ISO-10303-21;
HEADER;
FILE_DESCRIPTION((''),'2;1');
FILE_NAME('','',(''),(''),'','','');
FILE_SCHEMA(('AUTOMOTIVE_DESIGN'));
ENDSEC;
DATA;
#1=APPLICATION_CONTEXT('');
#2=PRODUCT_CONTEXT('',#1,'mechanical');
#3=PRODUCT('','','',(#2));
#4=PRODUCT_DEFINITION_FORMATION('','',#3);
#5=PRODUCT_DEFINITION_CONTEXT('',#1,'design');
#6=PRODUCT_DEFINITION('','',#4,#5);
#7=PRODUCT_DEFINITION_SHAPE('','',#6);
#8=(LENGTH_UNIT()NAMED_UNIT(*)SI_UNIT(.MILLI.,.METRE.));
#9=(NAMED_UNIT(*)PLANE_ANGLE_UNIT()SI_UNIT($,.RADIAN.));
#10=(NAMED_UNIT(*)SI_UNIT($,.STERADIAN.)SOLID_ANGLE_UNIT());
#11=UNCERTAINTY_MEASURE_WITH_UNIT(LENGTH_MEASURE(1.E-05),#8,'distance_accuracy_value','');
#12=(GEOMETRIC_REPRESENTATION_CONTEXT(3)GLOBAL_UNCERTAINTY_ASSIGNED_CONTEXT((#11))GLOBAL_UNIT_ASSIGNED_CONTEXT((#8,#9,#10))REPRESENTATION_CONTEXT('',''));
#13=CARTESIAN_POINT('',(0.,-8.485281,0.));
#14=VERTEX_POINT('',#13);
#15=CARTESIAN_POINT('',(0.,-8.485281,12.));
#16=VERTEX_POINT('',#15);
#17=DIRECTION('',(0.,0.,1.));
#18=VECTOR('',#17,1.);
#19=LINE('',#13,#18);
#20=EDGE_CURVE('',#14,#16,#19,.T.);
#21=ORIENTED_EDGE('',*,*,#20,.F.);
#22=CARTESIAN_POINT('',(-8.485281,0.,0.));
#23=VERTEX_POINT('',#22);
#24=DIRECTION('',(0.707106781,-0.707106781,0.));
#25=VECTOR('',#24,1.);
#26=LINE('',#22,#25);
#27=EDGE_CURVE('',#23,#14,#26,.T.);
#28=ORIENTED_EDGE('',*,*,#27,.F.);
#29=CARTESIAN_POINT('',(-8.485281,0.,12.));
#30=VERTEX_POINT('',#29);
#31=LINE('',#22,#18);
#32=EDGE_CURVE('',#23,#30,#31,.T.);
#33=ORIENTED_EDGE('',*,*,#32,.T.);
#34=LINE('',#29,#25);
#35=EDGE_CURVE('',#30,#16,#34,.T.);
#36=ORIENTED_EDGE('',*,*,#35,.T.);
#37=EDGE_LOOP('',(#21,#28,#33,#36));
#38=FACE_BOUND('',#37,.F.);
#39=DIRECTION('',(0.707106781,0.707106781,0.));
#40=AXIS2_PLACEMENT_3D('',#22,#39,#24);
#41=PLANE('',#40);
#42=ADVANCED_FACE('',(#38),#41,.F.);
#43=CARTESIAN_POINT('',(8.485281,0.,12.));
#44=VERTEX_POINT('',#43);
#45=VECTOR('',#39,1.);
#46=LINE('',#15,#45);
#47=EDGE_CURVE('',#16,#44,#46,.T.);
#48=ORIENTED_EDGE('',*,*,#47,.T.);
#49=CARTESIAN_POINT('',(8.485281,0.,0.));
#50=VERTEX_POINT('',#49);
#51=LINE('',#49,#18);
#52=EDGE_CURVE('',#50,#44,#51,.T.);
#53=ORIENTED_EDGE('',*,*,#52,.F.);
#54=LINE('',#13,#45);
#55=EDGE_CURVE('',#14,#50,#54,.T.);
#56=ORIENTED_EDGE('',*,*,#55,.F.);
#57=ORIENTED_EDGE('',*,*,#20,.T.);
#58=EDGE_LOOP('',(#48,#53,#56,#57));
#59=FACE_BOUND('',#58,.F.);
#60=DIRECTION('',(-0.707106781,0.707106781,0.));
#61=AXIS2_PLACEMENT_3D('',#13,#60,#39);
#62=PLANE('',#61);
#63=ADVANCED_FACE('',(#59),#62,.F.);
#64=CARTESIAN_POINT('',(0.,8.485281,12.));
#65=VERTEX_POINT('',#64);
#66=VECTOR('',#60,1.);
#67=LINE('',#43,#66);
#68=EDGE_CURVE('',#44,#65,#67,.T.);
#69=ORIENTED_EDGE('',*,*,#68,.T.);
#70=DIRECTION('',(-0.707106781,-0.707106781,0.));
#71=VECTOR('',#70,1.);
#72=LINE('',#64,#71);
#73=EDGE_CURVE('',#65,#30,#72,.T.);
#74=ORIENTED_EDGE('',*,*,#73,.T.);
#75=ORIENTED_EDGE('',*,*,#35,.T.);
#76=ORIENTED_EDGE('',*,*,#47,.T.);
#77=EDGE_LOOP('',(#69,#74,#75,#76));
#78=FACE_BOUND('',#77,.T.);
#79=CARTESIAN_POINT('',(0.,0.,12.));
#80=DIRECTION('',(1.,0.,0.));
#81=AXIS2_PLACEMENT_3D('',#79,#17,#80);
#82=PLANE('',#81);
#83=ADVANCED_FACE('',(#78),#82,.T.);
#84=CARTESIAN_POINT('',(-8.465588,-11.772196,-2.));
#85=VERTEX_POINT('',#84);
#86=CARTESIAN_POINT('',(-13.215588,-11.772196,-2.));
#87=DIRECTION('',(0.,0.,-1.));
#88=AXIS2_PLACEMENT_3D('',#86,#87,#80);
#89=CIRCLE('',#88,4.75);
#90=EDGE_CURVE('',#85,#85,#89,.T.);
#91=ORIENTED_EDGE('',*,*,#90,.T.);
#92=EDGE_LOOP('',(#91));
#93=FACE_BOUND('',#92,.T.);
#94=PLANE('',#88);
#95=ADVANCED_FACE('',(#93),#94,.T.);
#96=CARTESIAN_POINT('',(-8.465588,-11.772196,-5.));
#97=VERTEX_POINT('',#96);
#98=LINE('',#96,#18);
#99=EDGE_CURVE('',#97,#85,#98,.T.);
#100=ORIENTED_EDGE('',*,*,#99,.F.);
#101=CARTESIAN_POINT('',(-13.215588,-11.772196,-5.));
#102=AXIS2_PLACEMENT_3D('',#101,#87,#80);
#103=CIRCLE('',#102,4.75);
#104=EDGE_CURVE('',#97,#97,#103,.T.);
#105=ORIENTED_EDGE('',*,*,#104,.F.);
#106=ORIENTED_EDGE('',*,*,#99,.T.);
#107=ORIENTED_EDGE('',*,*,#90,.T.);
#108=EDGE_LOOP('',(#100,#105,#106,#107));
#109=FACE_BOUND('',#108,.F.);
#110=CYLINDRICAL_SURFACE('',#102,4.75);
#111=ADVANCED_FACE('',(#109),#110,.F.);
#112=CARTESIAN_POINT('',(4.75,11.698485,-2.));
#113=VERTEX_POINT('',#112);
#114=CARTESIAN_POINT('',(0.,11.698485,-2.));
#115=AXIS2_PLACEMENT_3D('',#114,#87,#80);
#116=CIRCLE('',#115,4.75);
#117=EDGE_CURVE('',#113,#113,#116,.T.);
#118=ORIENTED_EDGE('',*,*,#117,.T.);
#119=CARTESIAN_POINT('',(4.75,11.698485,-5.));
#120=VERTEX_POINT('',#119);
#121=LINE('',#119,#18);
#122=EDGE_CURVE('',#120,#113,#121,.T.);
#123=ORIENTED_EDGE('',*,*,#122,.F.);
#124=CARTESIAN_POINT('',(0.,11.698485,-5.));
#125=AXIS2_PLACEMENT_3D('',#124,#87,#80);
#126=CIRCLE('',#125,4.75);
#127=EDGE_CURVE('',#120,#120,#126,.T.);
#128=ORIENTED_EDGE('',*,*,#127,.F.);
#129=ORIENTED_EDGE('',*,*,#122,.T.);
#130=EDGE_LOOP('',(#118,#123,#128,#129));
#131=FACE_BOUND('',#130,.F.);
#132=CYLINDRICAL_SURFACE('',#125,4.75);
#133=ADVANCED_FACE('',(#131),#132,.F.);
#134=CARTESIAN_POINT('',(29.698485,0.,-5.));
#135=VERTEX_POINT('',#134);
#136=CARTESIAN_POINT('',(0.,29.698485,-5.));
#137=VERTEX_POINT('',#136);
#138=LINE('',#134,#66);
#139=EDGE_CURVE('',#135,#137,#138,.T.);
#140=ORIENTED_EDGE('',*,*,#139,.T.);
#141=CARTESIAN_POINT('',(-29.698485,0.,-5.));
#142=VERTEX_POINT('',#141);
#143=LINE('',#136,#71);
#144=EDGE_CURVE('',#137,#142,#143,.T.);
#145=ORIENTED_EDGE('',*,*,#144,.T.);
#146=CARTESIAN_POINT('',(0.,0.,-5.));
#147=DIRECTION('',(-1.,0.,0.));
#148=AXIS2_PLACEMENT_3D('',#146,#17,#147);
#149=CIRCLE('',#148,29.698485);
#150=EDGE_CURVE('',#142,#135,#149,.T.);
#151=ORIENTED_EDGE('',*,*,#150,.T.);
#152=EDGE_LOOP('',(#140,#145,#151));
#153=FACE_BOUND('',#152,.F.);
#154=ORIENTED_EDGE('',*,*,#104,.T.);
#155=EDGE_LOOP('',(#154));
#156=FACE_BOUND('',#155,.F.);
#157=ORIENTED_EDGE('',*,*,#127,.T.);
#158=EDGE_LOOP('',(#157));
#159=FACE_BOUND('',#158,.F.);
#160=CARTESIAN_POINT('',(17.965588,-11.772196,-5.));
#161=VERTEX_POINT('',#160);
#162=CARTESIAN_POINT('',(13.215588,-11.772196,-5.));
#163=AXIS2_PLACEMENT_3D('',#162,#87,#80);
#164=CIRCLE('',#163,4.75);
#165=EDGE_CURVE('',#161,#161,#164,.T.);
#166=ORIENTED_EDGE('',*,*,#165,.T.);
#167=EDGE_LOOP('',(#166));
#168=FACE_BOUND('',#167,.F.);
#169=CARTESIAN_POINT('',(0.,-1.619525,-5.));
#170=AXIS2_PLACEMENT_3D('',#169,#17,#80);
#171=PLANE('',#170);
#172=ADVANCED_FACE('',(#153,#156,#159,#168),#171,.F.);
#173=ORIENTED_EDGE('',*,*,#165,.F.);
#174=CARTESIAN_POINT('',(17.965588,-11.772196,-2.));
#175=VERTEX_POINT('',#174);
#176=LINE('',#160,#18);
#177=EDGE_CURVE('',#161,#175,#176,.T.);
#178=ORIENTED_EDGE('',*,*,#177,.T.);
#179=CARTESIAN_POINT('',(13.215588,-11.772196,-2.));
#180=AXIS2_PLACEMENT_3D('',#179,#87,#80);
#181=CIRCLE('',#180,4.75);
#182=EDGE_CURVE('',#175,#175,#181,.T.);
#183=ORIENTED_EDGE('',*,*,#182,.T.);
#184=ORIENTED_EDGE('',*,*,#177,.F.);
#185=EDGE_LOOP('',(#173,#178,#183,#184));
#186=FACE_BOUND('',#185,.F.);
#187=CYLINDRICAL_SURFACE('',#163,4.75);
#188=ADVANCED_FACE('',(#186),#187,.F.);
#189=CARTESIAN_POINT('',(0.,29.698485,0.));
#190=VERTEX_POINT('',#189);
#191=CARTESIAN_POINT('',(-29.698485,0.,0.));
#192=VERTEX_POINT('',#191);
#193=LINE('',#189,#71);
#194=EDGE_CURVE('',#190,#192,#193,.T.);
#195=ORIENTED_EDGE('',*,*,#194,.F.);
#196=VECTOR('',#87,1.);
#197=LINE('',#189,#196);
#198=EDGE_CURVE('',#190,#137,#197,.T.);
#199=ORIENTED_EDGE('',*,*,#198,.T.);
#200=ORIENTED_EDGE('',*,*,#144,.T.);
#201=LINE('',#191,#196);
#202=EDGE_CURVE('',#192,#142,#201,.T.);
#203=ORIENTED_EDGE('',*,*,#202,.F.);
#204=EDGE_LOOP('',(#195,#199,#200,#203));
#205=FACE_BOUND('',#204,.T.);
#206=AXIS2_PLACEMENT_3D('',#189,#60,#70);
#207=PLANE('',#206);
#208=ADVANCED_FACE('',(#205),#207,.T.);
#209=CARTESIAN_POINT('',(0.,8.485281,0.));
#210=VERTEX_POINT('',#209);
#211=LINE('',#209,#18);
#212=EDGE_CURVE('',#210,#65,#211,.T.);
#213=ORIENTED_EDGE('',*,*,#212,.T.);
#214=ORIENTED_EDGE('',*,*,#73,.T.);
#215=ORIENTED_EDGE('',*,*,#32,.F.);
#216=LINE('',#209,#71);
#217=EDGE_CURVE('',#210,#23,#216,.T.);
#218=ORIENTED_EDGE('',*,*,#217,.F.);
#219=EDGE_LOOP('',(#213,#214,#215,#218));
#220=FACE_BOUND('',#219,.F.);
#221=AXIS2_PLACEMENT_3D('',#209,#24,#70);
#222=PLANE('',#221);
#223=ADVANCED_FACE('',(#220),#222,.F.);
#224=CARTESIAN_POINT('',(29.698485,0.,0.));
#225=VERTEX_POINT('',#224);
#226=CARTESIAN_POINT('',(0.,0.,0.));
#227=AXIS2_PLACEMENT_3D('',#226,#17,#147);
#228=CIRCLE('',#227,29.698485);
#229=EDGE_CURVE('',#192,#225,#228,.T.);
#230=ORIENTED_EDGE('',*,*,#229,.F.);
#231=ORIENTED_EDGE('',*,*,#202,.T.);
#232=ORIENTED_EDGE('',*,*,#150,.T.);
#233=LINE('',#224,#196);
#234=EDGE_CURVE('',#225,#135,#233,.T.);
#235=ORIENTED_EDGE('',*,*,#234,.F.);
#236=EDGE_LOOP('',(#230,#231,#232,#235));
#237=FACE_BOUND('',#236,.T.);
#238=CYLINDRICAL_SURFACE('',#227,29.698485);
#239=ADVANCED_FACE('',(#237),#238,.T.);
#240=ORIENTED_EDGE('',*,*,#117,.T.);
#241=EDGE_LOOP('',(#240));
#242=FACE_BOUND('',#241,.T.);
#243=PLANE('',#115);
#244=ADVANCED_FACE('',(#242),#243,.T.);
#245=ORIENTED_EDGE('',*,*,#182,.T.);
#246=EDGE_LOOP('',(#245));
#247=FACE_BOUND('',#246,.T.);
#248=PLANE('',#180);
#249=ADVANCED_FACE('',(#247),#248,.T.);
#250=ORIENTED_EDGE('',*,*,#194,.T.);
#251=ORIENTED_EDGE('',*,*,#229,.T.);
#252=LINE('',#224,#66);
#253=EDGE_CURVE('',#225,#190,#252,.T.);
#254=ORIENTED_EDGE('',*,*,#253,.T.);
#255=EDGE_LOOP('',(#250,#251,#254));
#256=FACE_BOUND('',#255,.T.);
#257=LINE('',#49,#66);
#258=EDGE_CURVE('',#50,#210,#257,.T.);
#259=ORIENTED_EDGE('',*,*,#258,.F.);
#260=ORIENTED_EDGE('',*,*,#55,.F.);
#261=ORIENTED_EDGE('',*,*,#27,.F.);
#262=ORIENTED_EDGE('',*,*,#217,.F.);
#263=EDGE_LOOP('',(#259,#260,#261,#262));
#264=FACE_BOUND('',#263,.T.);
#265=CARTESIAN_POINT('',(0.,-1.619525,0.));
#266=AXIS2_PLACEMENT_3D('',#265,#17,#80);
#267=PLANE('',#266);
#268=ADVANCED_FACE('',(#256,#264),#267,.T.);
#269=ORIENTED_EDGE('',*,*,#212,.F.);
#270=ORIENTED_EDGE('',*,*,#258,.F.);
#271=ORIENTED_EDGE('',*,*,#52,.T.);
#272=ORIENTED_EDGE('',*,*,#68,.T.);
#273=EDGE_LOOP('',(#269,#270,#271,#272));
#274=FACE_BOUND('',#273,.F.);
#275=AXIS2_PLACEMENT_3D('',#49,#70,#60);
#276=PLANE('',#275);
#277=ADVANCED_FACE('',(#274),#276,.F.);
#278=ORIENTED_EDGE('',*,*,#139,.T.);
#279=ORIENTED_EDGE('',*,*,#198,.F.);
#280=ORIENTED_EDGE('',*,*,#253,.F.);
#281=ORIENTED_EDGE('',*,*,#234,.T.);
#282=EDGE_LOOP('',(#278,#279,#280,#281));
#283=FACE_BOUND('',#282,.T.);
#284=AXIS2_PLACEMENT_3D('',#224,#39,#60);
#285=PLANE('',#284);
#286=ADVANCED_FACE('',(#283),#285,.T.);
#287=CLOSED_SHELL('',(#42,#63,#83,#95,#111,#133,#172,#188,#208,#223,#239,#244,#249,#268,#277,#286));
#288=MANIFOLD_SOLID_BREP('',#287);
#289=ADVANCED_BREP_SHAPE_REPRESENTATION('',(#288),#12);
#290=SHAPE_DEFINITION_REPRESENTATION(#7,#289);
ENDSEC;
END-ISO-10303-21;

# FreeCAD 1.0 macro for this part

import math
import FreeCAD as App
import Part
import Sketcher

V = App.Vector

doc = App.newDocument("Part")
body = doc.addObject("PartDesign::Body", "Body")

sketch1 = body.newObject("Sketcher::SketchObject", "Sketch")
sketch1.AttachmentSupport = (doc.getObject("XY_Plane"), [""])
sketch1.MapMode = "FlatFace"
sketch1.addGeometry([
    Part.LineSegment(V(-8.485281, 0, 0), V(0, -8.485281, 0)),
    Part.LineSegment(V(0, -8.485281, 0), V(8.485281, 0, 0)),
    Part.LineSegment(V(8.485281, 0, 0), V(0, 8.485281, 0)),
    Part.LineSegment(V(0, 8.485281, 0), V(-8.485281, 0, 0)),
], False)
sketch1.addConstraint([
    Sketcher.Constraint("Coincident", 0, 2, 1, 1),
    Sketcher.Constraint("Coincident", 1, 2, 2, 1),
    Sketcher.Constraint("Coincident", 2, 2, 3, 1),
    Sketcher.Constraint("Coincident", 3, 2, 0, 1),
    Sketcher.Constraint("Symmetric", 0, 2, 2, 2, -1, 1),
    Sketcher.Constraint("Symmetric", 1, 2, 3, 2, -1, 1),
    Sketcher.Constraint("PointOnObject", 0, 2, -2),
    Sketcher.Constraint("PointOnObject", 1, 2, -1),
    Sketcher.Constraint("Perpendicular", 0, 1),
    Sketcher.Constraint("Distance", 0, 12.0),
])
pad1 = body.newObject("PartDesign::Pad", "Pad")
pad1.Profile = sketch1
pad1.Length = 12

sketch2 = body.newObject("Sketcher::SketchObject", "Sketch001")
sketch2.AttachmentSupport = (doc.getObject("XY_Plane"), [""])
sketch2.MapMode = "FlatFace"
sketch2.addGeometry([
    Part.LineSegment(V(0, 29.698485, 0), V(-29.698485, 0, 0)),
    Part.ArcOfCircle(Part.Circle(V(0, 0, 0), V(0, 0, 1), 29.698485), math.radians(180), math.radians(360)),
    Part.LineSegment(V(29.698485, 0, 0), V(0, 29.698485, 0)),
], False)
sketch2.addConstraint([
    Sketcher.Constraint("Coincident", 0, 2, 1, 1),
    Sketcher.Constraint("Coincident", 1, 2, 2, 1),
    Sketcher.Constraint("Coincident", 2, 2, 0, 1),
    Sketcher.Constraint("Coincident", 1, 3, -1, 1),
    Sketcher.Constraint("PointOnObject", 0, 2, -1),
    Sketcher.Constraint("PointOnObject", 1, 2, -1),
    Sketcher.Constraint("PointOnObject", 2, 2, -2),
    Sketcher.Constraint("Perpendicular", 0, 2),
    Sketcher.Constraint("Distance", 0, 42.0),
])
pad2 = body.newObject("PartDesign::Pad", "Pad001")
pad2.Profile = sketch2
pad2.Length = 5
pad2.Reversed = True

sketch3 = body.newObject("Sketcher::SketchObject", "Sketch002")
sketch3.AttachmentSupport = (doc.getObject("XY_Plane"), [""])
sketch3.MapMode = "FlatFace"
sketch3.AttachmentOffset = App.Placement(V(0, 0, -5), App.Rotation())
sketch3.addGeometry([
    Part.Circle(V(0, 11.698485, 0), V(0, 0, 1), 4.75),
    Part.Circle(V(-13.215588, -11.772196, 0), V(0, 0, 1), 4.75),
    Part.Circle(V(13.215588, -11.772196, 0), V(0, 0, 1), 4.75),
], False)
sketch3.addConstraint([
    Sketcher.Constraint("Equal", 0, 1),
    Sketcher.Constraint("Equal", 1, 2),
    Sketcher.Constraint("Symmetric", 1, 3, 2, 3, -2),
    Sketcher.Constraint("PointOnObject", 0, 3, -2),
    Sketcher.Constraint("Diameter", 0, 9.5),
    Sketcher.Constraint("DistanceX", 1, 3, -1, 1, 13.215588),
    Sketcher.Constraint("DistanceY", 1, 3, 0, 3, 23.470681),
    Sketcher.Constraint("DistanceY", -1, 1, 0, 3, 11.698485),
])
pocket1 = body.newObject("PartDesign::Pocket", "Pocket")
pocket1.Profile = sketch3
pocket1.Length = 3
pocket1.Reversed = True

doc.recompute()
